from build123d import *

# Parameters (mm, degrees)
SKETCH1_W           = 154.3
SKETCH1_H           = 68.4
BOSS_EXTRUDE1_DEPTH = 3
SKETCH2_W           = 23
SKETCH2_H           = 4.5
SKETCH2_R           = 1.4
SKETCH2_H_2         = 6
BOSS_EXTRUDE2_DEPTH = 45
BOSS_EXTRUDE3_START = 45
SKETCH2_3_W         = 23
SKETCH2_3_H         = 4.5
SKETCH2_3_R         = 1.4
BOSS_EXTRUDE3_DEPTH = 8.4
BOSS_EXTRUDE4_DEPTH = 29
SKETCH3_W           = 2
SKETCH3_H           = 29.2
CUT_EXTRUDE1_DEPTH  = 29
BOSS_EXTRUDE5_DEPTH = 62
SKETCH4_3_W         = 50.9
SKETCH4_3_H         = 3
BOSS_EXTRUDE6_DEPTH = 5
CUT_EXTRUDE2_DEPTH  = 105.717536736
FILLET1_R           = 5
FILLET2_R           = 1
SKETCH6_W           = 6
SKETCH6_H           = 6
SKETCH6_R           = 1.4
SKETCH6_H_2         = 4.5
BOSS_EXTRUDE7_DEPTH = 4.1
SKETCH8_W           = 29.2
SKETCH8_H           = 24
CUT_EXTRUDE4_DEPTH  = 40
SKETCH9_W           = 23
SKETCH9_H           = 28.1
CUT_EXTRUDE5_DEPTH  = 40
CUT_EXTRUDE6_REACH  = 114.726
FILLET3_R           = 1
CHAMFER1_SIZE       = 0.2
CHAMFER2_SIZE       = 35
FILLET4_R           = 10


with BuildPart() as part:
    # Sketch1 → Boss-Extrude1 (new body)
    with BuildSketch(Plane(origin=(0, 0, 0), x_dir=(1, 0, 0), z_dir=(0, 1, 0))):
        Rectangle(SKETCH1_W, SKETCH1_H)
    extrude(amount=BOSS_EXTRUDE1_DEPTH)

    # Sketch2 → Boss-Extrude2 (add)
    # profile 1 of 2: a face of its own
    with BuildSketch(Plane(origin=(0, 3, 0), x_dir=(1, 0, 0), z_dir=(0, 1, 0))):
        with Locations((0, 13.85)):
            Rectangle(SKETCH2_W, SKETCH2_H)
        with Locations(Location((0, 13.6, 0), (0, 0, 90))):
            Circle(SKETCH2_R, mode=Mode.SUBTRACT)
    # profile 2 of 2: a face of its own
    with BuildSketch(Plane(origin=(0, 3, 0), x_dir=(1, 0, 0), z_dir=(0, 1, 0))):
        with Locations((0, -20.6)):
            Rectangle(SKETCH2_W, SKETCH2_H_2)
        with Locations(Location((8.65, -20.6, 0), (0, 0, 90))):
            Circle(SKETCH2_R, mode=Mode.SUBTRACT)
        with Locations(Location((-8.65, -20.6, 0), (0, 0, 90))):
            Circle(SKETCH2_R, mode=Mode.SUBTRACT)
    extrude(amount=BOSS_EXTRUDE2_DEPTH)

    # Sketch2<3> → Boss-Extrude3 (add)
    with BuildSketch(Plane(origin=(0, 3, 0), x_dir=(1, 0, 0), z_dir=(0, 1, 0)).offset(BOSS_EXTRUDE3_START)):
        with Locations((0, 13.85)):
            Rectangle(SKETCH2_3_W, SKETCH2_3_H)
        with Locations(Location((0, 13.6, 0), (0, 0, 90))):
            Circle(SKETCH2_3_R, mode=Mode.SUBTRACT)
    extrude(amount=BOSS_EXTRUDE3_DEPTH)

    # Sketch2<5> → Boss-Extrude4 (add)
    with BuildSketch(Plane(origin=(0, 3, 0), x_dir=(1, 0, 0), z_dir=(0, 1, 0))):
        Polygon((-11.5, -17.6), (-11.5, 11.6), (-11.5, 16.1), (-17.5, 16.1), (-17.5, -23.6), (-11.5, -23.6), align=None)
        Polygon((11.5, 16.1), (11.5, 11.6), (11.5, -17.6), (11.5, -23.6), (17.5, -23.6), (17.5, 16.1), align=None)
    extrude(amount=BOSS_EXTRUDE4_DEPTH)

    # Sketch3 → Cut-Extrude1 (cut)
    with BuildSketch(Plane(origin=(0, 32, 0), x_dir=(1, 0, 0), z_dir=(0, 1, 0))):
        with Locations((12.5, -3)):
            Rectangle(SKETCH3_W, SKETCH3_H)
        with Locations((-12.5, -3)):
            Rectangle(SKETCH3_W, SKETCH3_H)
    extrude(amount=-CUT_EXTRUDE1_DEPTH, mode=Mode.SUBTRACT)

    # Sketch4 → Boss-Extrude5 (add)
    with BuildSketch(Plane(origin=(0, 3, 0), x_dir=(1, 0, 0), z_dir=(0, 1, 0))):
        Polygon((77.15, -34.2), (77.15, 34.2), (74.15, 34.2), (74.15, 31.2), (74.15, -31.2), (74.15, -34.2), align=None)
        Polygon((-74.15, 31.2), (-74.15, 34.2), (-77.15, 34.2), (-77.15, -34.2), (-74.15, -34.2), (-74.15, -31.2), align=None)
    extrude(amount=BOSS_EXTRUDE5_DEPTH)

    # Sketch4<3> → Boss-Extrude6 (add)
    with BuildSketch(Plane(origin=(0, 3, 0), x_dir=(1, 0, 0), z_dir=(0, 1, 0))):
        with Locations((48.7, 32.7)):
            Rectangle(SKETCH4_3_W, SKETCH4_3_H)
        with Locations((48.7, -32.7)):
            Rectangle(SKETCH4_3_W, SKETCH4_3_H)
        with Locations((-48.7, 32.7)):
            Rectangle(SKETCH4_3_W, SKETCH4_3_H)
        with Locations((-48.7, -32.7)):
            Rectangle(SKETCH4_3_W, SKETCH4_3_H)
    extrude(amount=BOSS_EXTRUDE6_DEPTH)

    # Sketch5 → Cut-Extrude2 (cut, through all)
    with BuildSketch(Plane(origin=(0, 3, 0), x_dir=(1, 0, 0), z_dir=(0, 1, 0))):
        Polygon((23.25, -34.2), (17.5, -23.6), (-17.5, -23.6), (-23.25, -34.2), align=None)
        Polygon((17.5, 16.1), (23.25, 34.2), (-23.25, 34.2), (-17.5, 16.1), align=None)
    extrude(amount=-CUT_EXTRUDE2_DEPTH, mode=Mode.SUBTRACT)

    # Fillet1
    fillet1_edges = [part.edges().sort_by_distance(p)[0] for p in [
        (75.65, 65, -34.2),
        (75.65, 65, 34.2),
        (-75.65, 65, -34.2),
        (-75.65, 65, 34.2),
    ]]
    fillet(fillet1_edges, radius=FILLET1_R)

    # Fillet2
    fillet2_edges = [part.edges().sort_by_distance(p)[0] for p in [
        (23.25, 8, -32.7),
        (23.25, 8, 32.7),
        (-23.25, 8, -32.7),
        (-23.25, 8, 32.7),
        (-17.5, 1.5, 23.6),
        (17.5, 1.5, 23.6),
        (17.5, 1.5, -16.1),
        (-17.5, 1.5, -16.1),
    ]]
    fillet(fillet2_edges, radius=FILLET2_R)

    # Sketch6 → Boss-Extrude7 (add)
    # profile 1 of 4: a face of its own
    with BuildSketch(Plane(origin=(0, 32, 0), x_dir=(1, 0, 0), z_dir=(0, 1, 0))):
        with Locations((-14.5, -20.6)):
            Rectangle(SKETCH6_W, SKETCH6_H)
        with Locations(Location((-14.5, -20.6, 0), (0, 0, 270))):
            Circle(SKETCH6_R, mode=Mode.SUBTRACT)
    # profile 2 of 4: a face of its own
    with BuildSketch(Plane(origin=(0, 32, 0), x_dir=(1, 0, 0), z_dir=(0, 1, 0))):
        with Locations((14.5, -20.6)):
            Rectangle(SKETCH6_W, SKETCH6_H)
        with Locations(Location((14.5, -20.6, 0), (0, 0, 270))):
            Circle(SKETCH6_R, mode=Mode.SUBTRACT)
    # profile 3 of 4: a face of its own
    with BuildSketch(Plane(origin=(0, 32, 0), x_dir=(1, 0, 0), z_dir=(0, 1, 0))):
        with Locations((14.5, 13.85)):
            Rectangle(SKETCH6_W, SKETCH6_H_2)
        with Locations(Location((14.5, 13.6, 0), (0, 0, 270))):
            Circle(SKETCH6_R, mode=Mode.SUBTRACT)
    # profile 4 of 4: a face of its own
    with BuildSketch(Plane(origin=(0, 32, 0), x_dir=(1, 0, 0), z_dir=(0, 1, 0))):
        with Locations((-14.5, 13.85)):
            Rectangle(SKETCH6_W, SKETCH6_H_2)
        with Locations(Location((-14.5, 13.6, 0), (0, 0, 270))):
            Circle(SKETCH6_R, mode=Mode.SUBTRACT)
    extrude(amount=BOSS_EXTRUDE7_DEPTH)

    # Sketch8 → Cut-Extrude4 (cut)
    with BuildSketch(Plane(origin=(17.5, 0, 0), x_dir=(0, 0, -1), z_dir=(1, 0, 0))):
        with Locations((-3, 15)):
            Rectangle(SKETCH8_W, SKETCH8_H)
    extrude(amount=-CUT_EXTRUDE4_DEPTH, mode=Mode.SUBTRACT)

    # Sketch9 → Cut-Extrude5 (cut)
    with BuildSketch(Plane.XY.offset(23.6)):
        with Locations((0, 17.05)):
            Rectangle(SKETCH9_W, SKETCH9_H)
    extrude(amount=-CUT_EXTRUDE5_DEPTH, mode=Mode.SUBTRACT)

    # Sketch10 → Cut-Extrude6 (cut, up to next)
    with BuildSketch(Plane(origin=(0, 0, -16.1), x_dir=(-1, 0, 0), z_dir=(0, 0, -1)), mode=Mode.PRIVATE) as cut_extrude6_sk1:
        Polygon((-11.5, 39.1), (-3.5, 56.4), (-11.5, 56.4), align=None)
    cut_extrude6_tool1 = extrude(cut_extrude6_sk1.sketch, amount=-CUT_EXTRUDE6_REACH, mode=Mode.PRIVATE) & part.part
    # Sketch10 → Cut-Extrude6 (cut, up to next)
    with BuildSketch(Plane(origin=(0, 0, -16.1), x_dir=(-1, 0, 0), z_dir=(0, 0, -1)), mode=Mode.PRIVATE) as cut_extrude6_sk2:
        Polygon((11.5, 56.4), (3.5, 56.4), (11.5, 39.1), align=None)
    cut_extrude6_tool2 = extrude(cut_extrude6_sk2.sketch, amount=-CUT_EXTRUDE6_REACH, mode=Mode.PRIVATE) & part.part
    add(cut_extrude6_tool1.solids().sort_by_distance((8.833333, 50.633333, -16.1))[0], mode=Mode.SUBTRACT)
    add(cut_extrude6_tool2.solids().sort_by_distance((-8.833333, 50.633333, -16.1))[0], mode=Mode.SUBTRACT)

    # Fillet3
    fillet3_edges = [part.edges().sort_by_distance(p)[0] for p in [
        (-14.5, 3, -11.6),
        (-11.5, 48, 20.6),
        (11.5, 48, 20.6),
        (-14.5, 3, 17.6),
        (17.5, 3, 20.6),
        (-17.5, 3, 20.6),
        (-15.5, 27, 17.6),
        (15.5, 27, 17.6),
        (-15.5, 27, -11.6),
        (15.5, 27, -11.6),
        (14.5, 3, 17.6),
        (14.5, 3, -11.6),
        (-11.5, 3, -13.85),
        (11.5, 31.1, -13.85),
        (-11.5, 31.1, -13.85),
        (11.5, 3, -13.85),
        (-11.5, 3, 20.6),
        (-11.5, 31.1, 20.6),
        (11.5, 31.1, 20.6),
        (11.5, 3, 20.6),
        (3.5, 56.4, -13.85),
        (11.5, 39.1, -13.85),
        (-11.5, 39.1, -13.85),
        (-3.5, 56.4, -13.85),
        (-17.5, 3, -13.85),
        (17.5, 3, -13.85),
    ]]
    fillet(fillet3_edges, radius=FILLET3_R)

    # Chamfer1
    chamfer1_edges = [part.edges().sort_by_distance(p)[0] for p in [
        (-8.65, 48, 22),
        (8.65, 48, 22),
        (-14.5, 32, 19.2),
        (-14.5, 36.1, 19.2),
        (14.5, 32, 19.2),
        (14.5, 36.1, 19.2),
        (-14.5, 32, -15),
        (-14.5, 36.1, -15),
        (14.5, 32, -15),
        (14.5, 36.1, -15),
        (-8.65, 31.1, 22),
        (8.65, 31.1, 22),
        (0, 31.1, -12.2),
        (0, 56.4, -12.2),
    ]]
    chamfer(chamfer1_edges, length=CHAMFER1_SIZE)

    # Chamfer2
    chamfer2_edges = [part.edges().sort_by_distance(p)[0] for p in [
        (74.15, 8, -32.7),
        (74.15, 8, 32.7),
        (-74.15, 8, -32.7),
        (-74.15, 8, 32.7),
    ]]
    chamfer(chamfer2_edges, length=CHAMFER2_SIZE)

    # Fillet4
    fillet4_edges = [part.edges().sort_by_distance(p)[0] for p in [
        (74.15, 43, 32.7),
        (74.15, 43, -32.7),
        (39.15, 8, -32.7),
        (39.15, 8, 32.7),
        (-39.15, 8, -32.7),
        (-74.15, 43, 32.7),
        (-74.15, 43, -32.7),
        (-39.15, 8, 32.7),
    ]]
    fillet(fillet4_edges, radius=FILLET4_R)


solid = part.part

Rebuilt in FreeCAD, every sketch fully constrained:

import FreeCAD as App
import Part
import Sketcher
from FreeCAD import Vector


def edges_at(feature, points):
    """Names of the edges that pass closest to the given points."""
    edges = feature.Shape.Edges
    near = lambda p: min(range(len(edges)), key=lambda i: edges[i].distToShape(Part.Vertex(*p))[0])
    return sorted({f"Edge{near(p) + 1}" for p in points})


def add_polygon(sketch, points):
    """Adds a closed chain of lines whose ends are joined by coincident constraints."""
    first, n = sketch.GeometryCount, len(points)
    for a, b in zip(points, points[1:] + points[:1]):
        sketch.addGeometry(Part.LineSegment(App.Vector(*a, 0), App.Vector(*b, 0)), False)
    for i in range(n):
        sketch.addConstraint(Sketcher.Constraint("Coincident", first + i, 2, first + (i + 1) % n, 1))

doc = App.newDocument("Part")
params = doc.addObject("Spreadsheet::Sheet", "Params")
for row, (alias, value) in enumerate([
    ("sketch1_width", "154.3 mm"),
    ("sketch1_height", "68.4 mm"),
    ("pad1_length", "3 mm"),
    ("sketch2_diameter", "2.8 mm"),
    ("sketch2_width", "23 mm"),
    ("sketch2_height", "6 mm"),
    ("sketch2_height2", "4.5 mm"),
    ("pad2_length", "45 mm"),
    ("sketch3_diameter", "2.8 mm"),
    ("sketch3_width", "23 mm"),
    ("sketch3_height", "4.5 mm"),
    ("pad3_length", "8.4 mm"),
    ("sketch4_width", "6 mm"),
    ("sketch4_height", "39.7 mm"),
    ("pad4_length", "29 mm"),
    ("sketch5_width", "2 mm"),
    ("sketch5_height", "29.2 mm"),
    ("pocket1_length", "29 mm"),
    ("sketch6_width", "3 mm"),
    ("sketch6_height", "68.4 mm"),
    ("pad5_length", "62 mm"),
    ("sketch7_height", "3 mm"),
    ("sketch7_width", "50.9 mm"),
    ("pad6_length", "5 mm"),
    ("sketch8_width", "35 mm"),
    ("sketch8_width2", "46.5 mm"),
    ("fillet_radius", "5 mm"),
    ("fillet2_radius", "1 mm"),
    ("sketch9_diameter", "2.8 mm"),
    ("sketch9_width", "6 mm"),
    ("sketch9_height", "4.5 mm"),
    ("pad7_length", "4.1 mm"),
    ("sketch10_width", "24 mm"),
    ("sketch10_height", "29.2 mm"),
    ("pocket3_length", "40 mm"),
    ("sketch11_width", "23 mm"),
    ("sketch11_height", "28.1 mm"),
    ("pocket4_length", "40 mm"),
    ("sketch12_width", "8 mm"),
    ("sketch12_height", "17.3 mm"),
    ("sketch13_width", "8 mm"),
    ("sketch13_height", "17.3 mm"),
    ("fillet3_radius", "1 mm"),
    ("chamfer_size", "0.2 mm"),
    ("chamfer2_size", "35 mm"),
    ("fillet4_radius", "10 mm"),
], start=1):
    params.set(f"A{row}", alias)
    params.set(f"B{row}", "=" + value)
    params.setAlias(f"B{row}", alias)

body = doc.addObject("PartDesign::Body", "Body")

# Sketch on XZ plane
sketch1 = body.newObject("Sketcher::SketchObject", "Sketch")
sketch1.AttachmentSupport = (doc.getObject("XZ_Plane"), [""])
sketch1.MapMode = "FlatFace"
add_polygon(sketch1, [(-77.15, -34.2), (-77.15, 34.2), (77.15, 34.2), (77.15, -34.2)])  # lines 0-3
sketch1.addConstraint([
    Sketcher.Constraint("Vertical", 0),
    Sketcher.Constraint("Horizontal", 1),
    Sketcher.Constraint("Vertical", 2),
    Sketcher.Constraint("Horizontal", 3),
    Sketcher.Constraint("Symmetric", 0, 2, 2, 2, -1, 1),
    Sketcher.Constraint("DistanceX", 1, 1, 1, 2, 154.3),
    Sketcher.Constraint("DistanceY", 0, 1, 0, 2, 68.4),
])
sketch1.setExpression("Constraints[9]", "Params.sketch1_width")
sketch1.setExpression("Constraints[10]", "Params.sketch1_height")
pad1 = body.newObject("PartDesign::Pad", "Pad")
pad1.Profile = sketch1
pad1.setExpression("Length", "Params.pad1_length")
pad1.Reversed = True

# Sketch on XZ plane
sketch2 = body.newObject("Sketcher::SketchObject", "Sketch001")
sketch2.AttachmentSupport = (doc.getObject("XZ_Plane"), [""])
sketch2.MapMode = "FlatFace"
sketch2.AttachmentOffset = App.Placement(Vector(0, 0, -3), App.Rotation())
add_polygon(sketch2, [(-11.5, -16.1), (-11.5, -11.6), (11.5, -11.6), (11.5, -16.1)])  # lines 0-3
sketch2.addGeometry(Part.Circle(Vector(0, -13.6, 0), Vector(0, 0, 1), 1.4), False)  # 4
add_polygon(sketch2, [(-11.5, 17.6), (-11.5, 23.6), (11.5, 23.6), (11.5, 17.6)])  # lines 5-8
sketch2.addGeometry(Part.Circle(Vector(-8.65, 20.6, 0), Vector(0, 0, 1), 1.4), False)  # 9
sketch2.addGeometry(Part.Circle(Vector(8.65, 20.6, 0), Vector(0, 0, 1), 1.4), False)  # 10
sketch2.addConstraint([
    Sketcher.Constraint("Vertical", 0),
    Sketcher.Constraint("Horizontal", 1),
    Sketcher.Constraint("Vertical", 2),
    Sketcher.Constraint("Horizontal", 3),
    Sketcher.Constraint("Vertical", 5),
    Sketcher.Constraint("Horizontal", 6),
    Sketcher.Constraint("Vertical", 7),
    Sketcher.Constraint("Horizontal", 8),
    Sketcher.Constraint("Equal", 4, 9),
    Sketcher.Constraint("Equal", 9, 10),
    Sketcher.Constraint("Symmetric", 9, 3, 10, 3, -2),
    Sketcher.Constraint("PointOnObject", 4, 3, -2),
    Sketcher.Constraint("Vertical", 3, 2, 5, 2),
    Sketcher.Constraint("Vertical", 2, 2, 6, 2),
    Sketcher.Constraint("Diameter", 4, 2.8),
    Sketcher.Constraint("DistanceX", 1, 1, 1, 2, 23.0),
    Sketcher.Constraint("DistanceY", 5, 1, 5, 2, 6.0),
    Sketcher.Constraint("DistanceY", 0, 1, 0, 2, 4.5),
    Sketcher.Constraint("DistanceY", 4, 3, 0, 2, 2.0),
    Sketcher.Constraint("DistanceY", 9, 3, 5, 2, 3.0),
    Sketcher.Constraint("DistanceY", 4, 3, -1, 1, 13.6),
    Sketcher.Constraint("DistanceY", -1, 1, 9, 3, 20.6),
    Sketcher.Constraint("DistanceX", 0, 2, -1, 1, 11.5),
    Sketcher.Constraint("DistanceX", 9, 3, 10, 3, 17.3),
])
sketch2.setExpression("Constraints[22]", "Params.sketch2_diameter")
sketch2.setExpression("Constraints[23]", "Params.sketch2_width")
sketch2.setExpression("Constraints[24]", "Params.sketch2_height")
sketch2.setExpression("Constraints[25]", "Params.sketch2_height2")
pad2 = body.newObject("PartDesign::Pad", "Pad001")
pad2.Profile = sketch2
pad2.setExpression("Length", "Params.pad2_length")
pad2.Reversed = True

# Sketch on XZ plane
sketch3 = body.newObject("Sketcher::SketchObject", "Sketch002")
sketch3.AttachmentSupport = (doc.getObject("XZ_Plane"), [""])
sketch3.MapMode = "FlatFace"
sketch3.AttachmentOffset = App.Placement(Vector(0, 0, -48), App.Rotation())
add_polygon(sketch3, [(-11.5, -16.1), (-11.5, -11.6), (11.5, -11.6), (11.5, -16.1)])  # lines 0-3
sketch3.addGeometry(Part.Circle(Vector(0, -13.6, 0), Vector(0, 0, 1), 1.4), False)  # 4
sketch3.addConstraint([
    Sketcher.Constraint("Vertical", 0),
    Sketcher.Constraint("Horizontal", 1),
    Sketcher.Constraint("Vertical", 2),
    Sketcher.Constraint("Horizontal", 3),
    Sketcher.Constraint("PointOnObject", 4, 3, -2),
    Sketcher.Constraint("Diameter", 4, 2.8),
    Sketcher.Constraint("DistanceX", 1, 1, 1, 2, 23.0),
    Sketcher.Constraint("DistanceY", 0, 1, 0, 2, 4.5),
    Sketcher.Constraint("DistanceY", 4, 3, 0, 2, 2.0),
    Sketcher.Constraint("DistanceY", 4, 3, -1, 1, 13.6),
    Sketcher.Constraint("DistanceX", 0, 2, -1, 1, 11.5),
])
sketch3.setExpression("Constraints[9]", "Params.sketch3_diameter")
sketch3.setExpression("Constraints[10]", "Params.sketch3_width")
sketch3.setExpression("Constraints[11]", "Params.sketch3_height")
pad3 = body.newObject("PartDesign::Pad", "Pad002")
pad3.Profile = sketch3
pad3.setExpression("Length", "Params.pad3_length")
pad3.Reversed = True

# Sketch on XZ plane
sketch4 = body.newObject("Sketcher::SketchObject", "Sketch003")
sketch4.AttachmentSupport = (doc.getObject("XZ_Plane"), [""])
sketch4.MapMode = "FlatFace"
sketch4.AttachmentOffset = App.Placement(Vector(0, 0, -3), App.Rotation())
add_polygon(sketch4, [(-11.5, -16.1), (-17.5, -16.1), (-17.5, 23.6), (-11.5, 23.6)])  # lines 0-3
add_polygon(sketch4, [(11.5, -16.1), (11.5, 23.6), (17.5, 23.6), (17.5, -16.1)])  # lines 4-7
sketch4.addConstraint([
    Sketcher.Constraint("Horizontal", 0),
    Sketcher.Constraint("Vertical", 1),
    Sketcher.Constraint("Horizontal", 2),
    Sketcher.Constraint("Vertical", 3),
    Sketcher.Constraint("Vertical", 4),
    Sketcher.Constraint("Horizontal", 5),
    Sketcher.Constraint("Vertical", 6),
    Sketcher.Constraint("Horizontal", 7),
    Sketcher.Constraint("Symmetric", 2, 2, 4, 2, -2),
    Sketcher.Constraint("Symmetric", 0, 2, 6, 2, -2),
    Sketcher.Constraint("DistanceX", 0, 2, 0, 1, 6.0),
    Sketcher.Constraint("DistanceY", 1, 1, 1, 2, 39.7),
    Sketcher.Constraint("DistanceX", 2, 2, 4, 2, 23.0),
    Sketcher.Constraint("DistanceY", 0, 2, -1, 1, 16.1),
])
sketch4.setExpression("Constraints[18]", "Params.sketch4_width")
sketch4.setExpression("Constraints[19]", "Params.sketch4_height")
pad4 = body.newObject("PartDesign::Pad", "Pad003")
pad4.Profile = sketch4
pad4.setExpression("Length", "Params.pad4_length")
pad4.Reversed = True

# Sketch on XZ plane
sketch5 = body.newObject("Sketcher::SketchObject", "Sketch004")
sketch5.AttachmentSupport = (doc.getObject("XZ_Plane"), [""])
sketch5.MapMode = "FlatFace"
sketch5.AttachmentOffset = App.Placement(Vector(0, 0, -32), App.Rotation())
add_polygon(sketch5, [(11.5, -11.6), (11.5, 17.6), (13.5, 17.6), (13.5, -11.6)])  # lines 0-3
add_polygon(sketch5, [(-13.5, -11.6), (-13.5, 17.6), (-11.5, 17.6), (-11.5, -11.6)])  # lines 4-7
sketch5.addConstraint([
    Sketcher.Constraint("Vertical", 0),
    Sketcher.Constraint("Horizontal", 1),
    Sketcher.Constraint("Vertical", 2),
    Sketcher.Constraint("Horizontal", 3),
    Sketcher.Constraint("Vertical", 4),
    Sketcher.Constraint("Horizontal", 5),
    Sketcher.Constraint("Vertical", 6),
    Sketcher.Constraint("Horizontal", 7),
    Sketcher.Constraint("Symmetric", 1, 2, 4, 2, -2),
    Sketcher.Constraint("Symmetric", 3, 2, 6, 2, -2),
    Sketcher.Constraint("DistanceX", 1, 1, 1, 2, 2.0),
    Sketcher.Constraint("DistanceY", 0, 1, 0, 2, 29.2),
    Sketcher.Constraint("DistanceX", 4, 2, 0, 2, 25.0),
    Sketcher.Constraint("DistanceY", -1, 1, 0, 2, 17.6),
])
sketch5.setExpression("Constraints[18]", "Params.sketch5_width")
sketch5.setExpression("Constraints[19]", "Params.sketch5_height")
pocket1 = body.newObject("PartDesign::Pocket", "Pocket")
pocket1.Profile = sketch5
pocket1.setExpression("Length", "Params.pocket1_length")
pocket1.Reversed = True

# Sketch on XZ plane
sketch6 = body.newObject("Sketcher::SketchObject", "Sketch005")
sketch6.AttachmentSupport = (doc.getObject("XZ_Plane"), [""])
sketch6.MapMode = "FlatFace"
sketch6.AttachmentOffset = App.Placement(Vector(0, 0, -3), App.Rotation())
add_polygon(sketch6, [(77.15, 34.2), (77.15, -34.2), (74.15, -34.2), (74.15, 34.2)])  # lines 0-3
add_polygon(sketch6, [(-74.15, -34.2), (-77.15, -34.2), (-77.15, 34.2), (-74.15, 34.2)])  # lines 4-7
sketch6.addConstraint([
    Sketcher.Constraint("Vertical", 0),
    Sketcher.Constraint("Horizontal", 1),
    Sketcher.Constraint("Vertical", 2),
    Sketcher.Constraint("Horizontal", 3),
    Sketcher.Constraint("Horizontal", 4),
    Sketcher.Constraint("Vertical", 5),
    Sketcher.Constraint("Horizontal", 6),
    Sketcher.Constraint("Vertical", 7),
    Sketcher.Constraint("Symmetric", 3, 2, 4, 2, -1, 1),
    Sketcher.Constraint("Symmetric", 1, 2, 6, 2, -1, 1),
    Sketcher.Constraint("Horizontal", 1, 2, 4, 2),
    Sketcher.Constraint("DistanceX", 1, 2, 1, 1, 3.0),
    Sketcher.Constraint("DistanceY", 0, 2, 0, 1, 68.4),
    Sketcher.Constraint("DistanceX", 4, 2, 1, 2, 151.3),
])
sketch6.setExpression("Constraints[19]", "Params.sketch6_width")
sketch6.setExpression("Constraints[20]", "Params.sketch6_height")
pad5 = body.newObject("PartDesign::Pad", "Pad004")
pad5.Profile = sketch6
pad5.setExpression("Length", "Params.pad5_length")
pad5.Reversed = True

# Sketch on XZ plane
sketch7 = body.newObject("Sketcher::SketchObject", "Sketch006")
sketch7.AttachmentSupport = (doc.getObject("XZ_Plane"), [""])
sketch7.MapMode = "FlatFace"
sketch7.AttachmentOffset = App.Placement(Vector(0, 0, -3), App.Rotation())
add_polygon(sketch7, [(23.25, -34.2), (23.25, -31.2), (74.15, -31.2), (74.15, -34.2)])  # lines 0-3
add_polygon(sketch7, [(23.25, 31.2), (23.25, 34.2), (74.15, 34.2), (74.15, 31.2)])  # lines 4-7
add_polygon(sketch7, [(-74.15, -34.2), (-74.15, -31.2), (-23.25, -31.2), (-23.25, -34.2)])  # lines 8-11
add_polygon(sketch7, [(-74.15, 31.2), (-74.15, 34.2), (-23.25, 34.2), (-23.25, 31.2)])  # lines 12-15
sketch7.addConstraint([
    Sketcher.Constraint("Vertical", 0),
    Sketcher.Constraint("Horizontal", 1),
    Sketcher.Constraint("Vertical", 2),
    Sketcher.Constraint("Horizontal", 3),
    Sketcher.Constraint("Vertical", 4),
    Sketcher.Constraint("Horizontal", 5),
    Sketcher.Constraint("Vertical", 6),
    Sketcher.Constraint("Horizontal", 7),
    Sketcher.Constraint("Vertical", 8),
    Sketcher.Constraint("Horizontal", 9),
    Sketcher.Constraint("Vertical", 10),
    Sketcher.Constraint("Horizontal", 11),
    Sketcher.Constraint("Vertical", 12),
    Sketcher.Constraint("Horizontal", 13),
    Sketcher.Constraint("Vertical", 14),
    Sketcher.Constraint("Horizontal", 15),
    Sketcher.Constraint("Symmetric", 6, 2, 8, 2, -1, 1),
    Sketcher.Constraint("Symmetric", 4, 2, 10, 2, -1, 1),
    Sketcher.Constraint("Symmetric", 2, 2, 12, 2, -1, 1),
    Sketcher.Constraint("Symmetric", 0, 2, 14, 2, -1, 1),
    Sketcher.Constraint("Symmetric", 1, 2, 8, 2, -2),
    Sketcher.Constraint("Symmetric", 3, 2, 10, 2, -2),
    Sketcher.Constraint("DistanceY", 0, 1, 0, 2, 3.0),
    Sketcher.Constraint("DistanceX", 1, 1, 1, 2, 50.9),
    Sketcher.Constraint("DistanceY", 0, 2, -1, 1, 31.2),
    Sketcher.Constraint("DistanceX", 8, 2, 0, 2, 97.4),
])
sketch7.setExpression("Constraints[38]", "Params.sketch7_height")
sketch7.setExpression("Constraints[39]", "Params.sketch7_width")
pad6 = body.newObject("PartDesign::Pad", "Pad005")
pad6.Profile = sketch7
pad6.setExpression("Length", "Params.pad6_length")
pad6.Reversed = True

# Sketch on XZ plane
sketch8 = body.newObject("Sketcher::SketchObject", "Sketch007")
sketch8.AttachmentSupport = (doc.getObject("XZ_Plane"), [""])
sketch8.MapMode = "FlatFace"
sketch8.AttachmentOffset = App.Placement(Vector(0, 0, -3), App.Rotation())
add_polygon(sketch8, [(23.25, 34.2), (17.5, 23.6), (-17.5, 23.6), (-23.25, 34.2)])  # lines 0-3
add_polygon(sketch8, [(17.5, -16.1), (23.25, -34.2), (-23.25, -34.2), (-17.5, -16.1)])  # lines 4-7
sketch8.addConstraint([
    Sketcher.Constraint("Horizontal", 1),
    Sketcher.Constraint("Horizontal", 3),
    Sketcher.Constraint("Horizontal", 5),
    Sketcher.Constraint("Horizontal", 7),
    Sketcher.Constraint("Symmetric", 2, 2, 4, 2, -1, 1),
    Sketcher.Constraint("Vertical", 3, 2, 4, 2),
    Sketcher.Constraint("Vertical", 2, 2, 5, 2),
    Sketcher.Constraint("Vertical", 1, 2, 6, 2),
    Sketcher.Constraint("Vertical", 0, 2, 7, 2),
    Sketcher.Constraint("Equal", 0, 2),
    Sketcher.Constraint("DistanceX", 1, 2, 1, 1, 35.0),
    Sketcher.Constraint("DistanceX", 3, 1, 3, 2, 46.5),
    Sketcher.Constraint("DistanceY", -1, 1, 0, 2, 23.6),
    Sketcher.Constraint("DistanceY", -1, 1, 2, 2, 34.2),
    Sketcher.Constraint("DistanceY", 6, 2, -1, 1, 16.1),
])
sketch8.setExpression("Constraints[18]", "Params.sketch8_width")
sketch8.setExpression("Constraints[19]", "Params.sketch8_width2")
pocket2 = body.newObject("PartDesign::Pocket", "Pocket001")
pocket2.Profile = sketch8
pocket2.Type = "ThroughAll"
pocket2.Reversed = True
doc.recompute()

fillet = body.newObject("PartDesign::Fillet", "Fillet")
fillet.Base = (pocket2, edges_at(pocket2, [
    (75.65, 65, -34.2),
    (75.65, 65, 34.2),
    (-75.65, 65, -34.2),
    (-75.65, 65, 34.2),
]))
fillet.setExpression("Radius", "Params.fillet_radius")
doc.recompute()

fillet2 = body.newObject("PartDesign::Fillet", "Fillet001")
fillet2.Base = (fillet, edges_at(fillet, [
    (23.25, 8, -32.7),
    (23.25, 8, 32.7),
    (-23.25, 8, -32.7),
    (-23.25, 8, 32.7),
    (-17.5, 1.5, 23.6),
    (17.5, 1.5, 23.6),
    (17.5, 1.5, -16.1),
    (-17.5, 1.5, -16.1),
]))
fillet2.setExpression("Radius", "Params.fillet2_radius")

# Sketch on XZ plane
sketch9 = body.newObject("Sketcher::SketchObject", "Sketch008")
sketch9.AttachmentSupport = (doc.getObject("XZ_Plane"), [""])
sketch9.MapMode = "FlatFace"
sketch9.AttachmentOffset = App.Placement(Vector(0, 0, -32), App.Rotation())
add_polygon(sketch9, [(-17.5, 17.6), (-17.5, 23.6), (-11.5, 23.6), (-11.5, 17.6)])  # lines 0-3
sketch9.addGeometry(Part.Circle(Vector(-14.5, 20.6, 0), Vector(0, 0, 1), 1.4), False)  # 4
add_polygon(sketch9, [(11.5, 17.6), (11.5, 23.6), (17.5, 23.6), (17.5, 17.6)])  # lines 5-8
sketch9.addGeometry(Part.Circle(Vector(14.5, 20.6, 0), Vector(0, 0, 1), 1.4), False)  # 9
add_polygon(sketch9, [(11.5, -16.1), (11.5, -11.6), (17.5, -11.6), (17.5, -16.1)])  # lines 10-13
sketch9.addGeometry(Part.Circle(Vector(14.5, -13.6, 0), Vector(0, 0, 1), 1.4), False)  # 14
add_polygon(sketch9, [(-17.5, -16.1), (-17.5, -11.6), (-11.5, -11.6), (-11.5, -16.1)])  # lines 15-18
sketch9.addGeometry(Part.Circle(Vector(-14.5, -13.6, 0), Vector(0, 0, 1), 1.4), False)  # 19
sketch9.addConstraint([
    Sketcher.Constraint("Vertical", 0),
    Sketcher.Constraint("Horizontal", 1),
    Sketcher.Constraint("Vertical", 2),
    Sketcher.Constraint("Horizontal", 3),
    Sketcher.Constraint("Vertical", 5),
    Sketcher.Constraint("Horizontal", 6),
    Sketcher.Constraint("Vertical", 7),
    Sketcher.Constraint("Horizontal", 8),
    Sketcher.Constraint("Vertical", 10),
    Sketcher.Constraint("Horizontal", 11),
    Sketcher.Constraint("Vertical", 12),
    Sketcher.Constraint("Horizontal", 13),
    Sketcher.Constraint("Vertical", 15),
    Sketcher.Constraint("Horizontal", 16),
    Sketcher.Constraint("Vertical", 17),
    Sketcher.Constraint("Horizontal", 18),
    Sketcher.Constraint("Equal", 4, 9),
    Sketcher.Constraint("Equal", 9, 14),
    Sketcher.Constraint("Equal", 14, 19),
    Sketcher.Constraint("Symmetric", 4, 3, 9, 3, -2),
    Sketcher.Constraint("Symmetric", 14, 3, 19, 3, -2),
    Sketcher.Constraint("Symmetric", 1, 2, 5, 2, -2),
    Sketcher.Constraint("Symmetric", 3, 2, 7, 2, -2),
    Sketcher.Constraint("Symmetric", 11, 2, 15, 2, -2),
    Sketcher.Constraint("Symmetric", 13, 2, 17, 2, -2),
    Sketcher.Constraint("Vertical", 9, 3, 14, 3),
    Sketcher.Constraint("Vertical", 8, 2, 10, 2),
    Sketcher.Constraint("Vertical", 7, 2, 11, 2),
    Sketcher.Constraint("Equal", 18, 0),
    Sketcher.Constraint("Diameter", 4, 2.8),
    Sketcher.Constraint("DistanceX", 1, 1, 1, 2, 6.0),
    Sketcher.Constraint("DistanceY", 10, 1, 10, 2, 4.5),
    Sketcher.Constraint("DistanceX", 4, 3, 9, 3, 29.0),
    Sketcher.Constraint("DistanceX", 0, 2, 4, 3, 3.0),
    Sketcher.Constraint("DistanceY", 4, 3, 0, 2, 3.0),
    Sketcher.Constraint("DistanceY", 14, 3, 10, 2, 2.0),
    Sketcher.Constraint("DistanceY", -1, 1, 4, 3, 20.6),
    Sketcher.Constraint("DistanceY", 14, 3, -1, 1, 13.6),
])
sketch9.setExpression("Constraints[45]", "Params.sketch9_diameter")
sketch9.setExpression("Constraints[46]", "Params.sketch9_width")
sketch9.setExpression("Constraints[47]", "Params.sketch9_height")
pad7 = body.newObject("PartDesign::Pad", "Pad006")
pad7.Profile = sketch9
pad7.setExpression("Length", "Params.pad7_length")
pad7.Reversed = True

# Sketch on YZ plane
sketch10 = body.newObject("Sketcher::SketchObject", "Sketch009")
sketch10.AttachmentSupport = (doc.getObject("YZ_Plane"), [""])
sketch10.MapMode = "FlatFace"
sketch10.AttachmentOffset = App.Placement(Vector(0, 0, 17.5), App.Rotation())
add_polygon(sketch10, [(27, 17.6), (3, 17.6), (3, -11.6), (27, -11.6)])  # lines 0-3
sketch10.addConstraint([
    Sketcher.Constraint("Horizontal", 0),
    Sketcher.Constraint("Vertical", 1),
    Sketcher.Constraint("Horizontal", 2),
    Sketcher.Constraint("Vertical", 3),
    Sketcher.Constraint("DistanceX", 0, 2, 0, 1, 24.0),
    Sketcher.Constraint("DistanceY", 1, 2, 1, 1, 29.2),
    Sketcher.Constraint("DistanceX", -1, 1, 0, 2, 3.0),
    Sketcher.Constraint("DistanceY", -1, 1, 0, 2, 17.6),
])
sketch10.setExpression("Constraints[8]", "Params.sketch10_width")
sketch10.setExpression("Constraints[9]", "Params.sketch10_height")
pocket3 = body.newObject("PartDesign::Pocket", "Pocket002")
pocket3.Profile = sketch10
pocket3.setExpression("Length", "Params.pocket3_length")

# Sketch on XY plane
sketch11 = body.newObject("Sketcher::SketchObject", "Sketch010")
sketch11.AttachmentSupport = (doc.getObject("XY_Plane"), [""])
sketch11.MapMode = "FlatFace"
sketch11.AttachmentOffset = App.Placement(Vector(0, 0, 23.6), App.Rotation())
add_polygon(sketch11, [(-11.5, 31.1), (-11.5, 3), (11.5, 3), (11.5, 31.1)])  # lines 0-3
sketch11.addConstraint([
    Sketcher.Constraint("Vertical", 0),
    Sketcher.Constraint("Horizontal", 1),
    Sketcher.Constraint("Vertical", 2),
    Sketcher.Constraint("Horizontal", 3),
    Sketcher.Constraint("DistanceX", 1, 1, 1, 2, 23.0),
    Sketcher.Constraint("DistanceY", 0, 2, 0, 1, 28.1),
    Sketcher.Constraint("DistanceY", -1, 1, 0, 2, 3.0),
    Sketcher.Constraint("DistanceX", 0, 2, -1, 1, 11.5),
])
sketch11.setExpression("Constraints[8]", "Params.sketch11_width")
sketch11.setExpression("Constraints[9]", "Params.sketch11_height")
pocket4 = body.newObject("PartDesign::Pocket", "Pocket003")
pocket4.Profile = sketch11
pocket4.setExpression("Length", "Params.pocket4_length")

# Sketch on XY plane
sketch12 = body.newObject("Sketcher::SketchObject", "Sketch011")
sketch12.AttachmentSupport = (doc.getObject("XY_Plane"), [""])
sketch12.MapMode = "FlatFace"
sketch12.AttachmentOffset = App.Placement(Vector(0, 0, -16.1), App.Rotation())
add_polygon(sketch12, [(11.5, 39.1), (3.5, 56.4), (11.5, 56.4)])  # lines 0-2
sketch12.addConstraint([
    Sketcher.Constraint("Horizontal", 1),
    Sketcher.Constraint("Vertical", 2),
    Sketcher.Constraint("DistanceX", 1, 1, 1, 2, 8.0),
    Sketcher.Constraint("DistanceY", 2, 2, 2, 1, 17.3),
    Sketcher.Constraint("DistanceX", -1, 1, 0, 2, 3.5),
    Sketcher.Constraint("DistanceY", -1, 1, 0, 2, 56.4),
])
sketch12.setExpression("Constraints[5]", "Params.sketch12_width")
sketch12.setExpression("Constraints[6]", "Params.sketch12_height")
pocket5 = body.newObject("PartDesign::Pocket", "Pocket004")
pocket5.Profile = sketch12
pocket5.Type = "UpToFirst"
pocket5.Reversed = True

# Sketch on XY plane
sketch13 = body.newObject("Sketcher::SketchObject", "Sketch012")
sketch13.AttachmentSupport = (doc.getObject("XY_Plane"), [""])
sketch13.MapMode = "FlatFace"
sketch13.AttachmentOffset = App.Placement(Vector(0, 0, -16.1), App.Rotation())
add_polygon(sketch13, [(-11.5, 56.4), (-3.5, 56.4), (-11.5, 39.1)])  # lines 0-2
sketch13.addConstraint([
    Sketcher.Constraint("Horizontal", 0),
    Sketcher.Constraint("Vertical", 2),
    Sketcher.Constraint("DistanceX", 0, 1, 0, 2, 8.0),
    Sketcher.Constraint("DistanceY", 2, 1, 2, 2, 17.3),
    Sketcher.Constraint("DistanceX", 0, 2, -1, 1, 3.5),
    Sketcher.Constraint("DistanceY", -1, 1, 0, 2, 56.4),
])
sketch13.setExpression("Constraints[5]", "Params.sketch13_width")
sketch13.setExpression("Constraints[6]", "Params.sketch13_height")
pocket6 = body.newObject("PartDesign::Pocket", "Pocket005")
pocket6.Profile = sketch13
pocket6.Type = "UpToFirst"
pocket6.Reversed = True
doc.recompute()

fillet3 = body.newObject("PartDesign::Fillet", "Fillet002")
fillet3.Base = (pocket6, edges_at(pocket6, [
    (-14.5, 3, -11.6),
    (-11.5, 48, 20.6),
    (11.5, 48, 20.6),
    (-14.5, 3, 17.6),
    (17.5, 3, 20.6),
    (-17.5, 3, 20.6),
    (-15.5, 27, 17.6),
    (15.5, 27, 17.6),
    (-15.5, 27, -11.6),
    (15.5, 27, -11.6),
    (14.5, 3, 17.6),
    (14.5, 3, -11.6),
    (-11.5, 3, -13.85),
    (11.5, 31.1, -13.85),
    (-11.5, 31.1, -13.85),
    (11.5, 3, -13.85),
    (-11.5, 3, 20.6),
    (-11.5, 31.1, 20.6),
    (11.5, 31.1, 20.6),
    (11.5, 3, 20.6),
    (3.5, 56.4, -13.85),
    (11.5, 39.1, -13.85),
    (-11.5, 39.1, -13.85),
    (-3.5, 56.4, -13.85),
    (-17.5, 3, -13.85),
    (17.5, 3, -13.85),
]))
fillet3.setExpression("Radius", "Params.fillet3_radius")
doc.recompute()

chamfer = body.newObject("PartDesign::Chamfer", "Chamfer")
chamfer.Base = (fillet3, edges_at(fillet3, [
    (-8.65, 48, 22),
    (8.65, 48, 22),
    (-14.5, 32, 19.2),
    (-14.5, 36.1, 19.2),
    (14.5, 32, 19.2),
    (14.5, 36.1, 19.2),
    (-14.5, 32, -15),
    (-14.5, 36.1, -15),
    (14.5, 32, -15),
    (14.5, 36.1, -15),
    (-8.65, 31.1, 22),
    (8.65, 31.1, 22),
    (0, 31.1, -12.2),
    (0, 56.4, -12.2),
]))
chamfer.setExpression("Size", "Params.chamfer_size")
doc.recompute()

chamfer2 = body.newObject("PartDesign::Chamfer", "Chamfer001")
chamfer2.Base = (chamfer, edges_at(chamfer, [
    (74.15, 8, -32.7),
    (74.15, 8, 32.7),
    (-74.15, 8, -32.7),
    (-74.15, 8, 32.7),
]))
chamfer2.setExpression("Size", "Params.chamfer2_size")
doc.recompute()

fillet4 = body.newObject("PartDesign::Fillet", "Fillet003")
fillet4.Base = (chamfer2, edges_at(chamfer2, [
    (74.15, 43, 32.7),
    (74.15, 43, -32.7),
    (39.15, 8, -32.7),
    (39.15, 8, 32.7),
    (-39.15, 8, -32.7),
    (-74.15, 43, 32.7),
    (-74.15, 43, -32.7),
    (-39.15, 8, 32.7),
]))
fillet4.setExpression("Radius", "Params.fillet4_radius")

doc.recompute()
